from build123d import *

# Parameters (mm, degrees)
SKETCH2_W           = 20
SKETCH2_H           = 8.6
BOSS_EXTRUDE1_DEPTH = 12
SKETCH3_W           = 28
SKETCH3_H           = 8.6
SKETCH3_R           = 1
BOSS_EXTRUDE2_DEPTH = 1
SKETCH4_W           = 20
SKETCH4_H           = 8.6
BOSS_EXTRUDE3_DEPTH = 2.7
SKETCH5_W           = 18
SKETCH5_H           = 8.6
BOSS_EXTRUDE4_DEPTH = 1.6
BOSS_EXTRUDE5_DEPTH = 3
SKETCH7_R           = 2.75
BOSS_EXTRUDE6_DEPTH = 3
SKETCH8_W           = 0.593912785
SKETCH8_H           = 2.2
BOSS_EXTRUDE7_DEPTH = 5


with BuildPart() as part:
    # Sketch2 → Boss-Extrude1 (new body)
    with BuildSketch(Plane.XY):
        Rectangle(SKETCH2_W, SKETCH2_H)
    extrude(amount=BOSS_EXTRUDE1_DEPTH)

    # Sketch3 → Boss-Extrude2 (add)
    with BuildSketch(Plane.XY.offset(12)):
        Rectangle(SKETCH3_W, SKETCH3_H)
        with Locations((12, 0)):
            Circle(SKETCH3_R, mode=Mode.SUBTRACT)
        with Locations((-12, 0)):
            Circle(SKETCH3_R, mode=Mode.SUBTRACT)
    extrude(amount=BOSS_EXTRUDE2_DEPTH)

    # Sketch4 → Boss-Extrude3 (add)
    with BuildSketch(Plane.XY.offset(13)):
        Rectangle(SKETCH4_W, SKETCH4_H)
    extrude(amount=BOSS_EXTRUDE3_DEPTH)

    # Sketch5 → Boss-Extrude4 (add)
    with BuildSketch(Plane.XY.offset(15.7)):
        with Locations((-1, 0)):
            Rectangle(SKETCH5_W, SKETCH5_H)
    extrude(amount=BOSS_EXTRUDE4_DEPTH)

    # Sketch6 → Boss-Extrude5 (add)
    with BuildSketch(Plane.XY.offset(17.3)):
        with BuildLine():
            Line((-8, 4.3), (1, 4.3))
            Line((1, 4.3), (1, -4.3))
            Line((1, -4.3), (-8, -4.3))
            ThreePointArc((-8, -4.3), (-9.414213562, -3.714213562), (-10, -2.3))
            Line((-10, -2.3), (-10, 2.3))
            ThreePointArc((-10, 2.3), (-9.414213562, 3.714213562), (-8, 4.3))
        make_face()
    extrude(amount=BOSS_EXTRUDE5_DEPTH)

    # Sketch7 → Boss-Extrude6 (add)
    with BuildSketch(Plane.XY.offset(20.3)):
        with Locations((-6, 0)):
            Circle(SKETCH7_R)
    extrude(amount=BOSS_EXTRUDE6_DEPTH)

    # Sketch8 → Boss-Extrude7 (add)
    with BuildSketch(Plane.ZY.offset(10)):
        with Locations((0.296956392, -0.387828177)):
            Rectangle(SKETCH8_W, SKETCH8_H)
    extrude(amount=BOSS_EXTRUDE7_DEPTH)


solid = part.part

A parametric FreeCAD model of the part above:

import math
import FreeCAD as App
import Part
import Sketcher


def add_polygon(sketch, points):
    """Adds a closed chain of lines whose ends are joined by coincident constraints."""
    first, n = sketch.GeometryCount, len(points)
    for a, b in zip(points, points[1:] + points[:1]):
        sketch.addGeometry(Part.LineSegment(App.Vector(*a, 0), App.Vector(*b, 0)), False)
    for i in range(n):
        sketch.addConstraint(Sketcher.Constraint("Coincident", first + i, 2, first + (i + 1) % n, 1))

doc = App.newDocument("Part")
body = doc.addObject("PartDesign::Body", "Body")

# Sketch on XY plane
sketch1 = body.newObject("Sketcher::SketchObject", "Sketch")
sketch1.AttachmentSupport = (doc.getObject("XY_Plane"), [""])
sketch1.MapMode = "FlatFace"
add_polygon(sketch1, [(-10, 4), (-10, -4), (10, -4), (10, 4)])  # lines 0-3
sketch1.addConstraint([
    Sketcher.Constraint("Vertical", 0),
    Sketcher.Constraint("Horizontal", 1),
    Sketcher.Constraint("Vertical", 2),
    Sketcher.Constraint("Horizontal", 3),
    Sketcher.Constraint("Symmetric", 0, 2, 2, 2, -1, 1),
    Sketcher.Constraint("DistanceX", 1, 1, 1, 2, 20.0),
    Sketcher.Constraint("DistanceY", 0, 2, 0, 1, 8.6),
])
pad1 = body.newObject("PartDesign::Pad", "Pad")
pad1.Profile = sketch1
pad1.Length = 12

# Sketch on XY plane
sketch2 = body.newObject("Sketcher::SketchObject", "Sketch001")
sketch2.AttachmentSupport = (doc.getObject("XY_Plane"), [""])
sketch2.MapMode = "FlatFace"
sketch2.AttachmentOffset = App.Placement(App.Vector(0, 0, 12), App.Rotation())
add_polygon(sketch2, [(-14, 4.3), (-14, -4.3), (14, -4.3), (14, 4.3)])  # lines 0-3
sketch2.addGeometry(Part.Circle(App.Vector(-12, 0, 0), App.Vector(0, 0, 1), 1), False)  # 4
sketch2.addGeometry(Part.Circle(App.Vector(12, 0, 0), App.Vector(0, 0, 1), 1), False)  # 5
sketch2.addConstraint([
    Sketcher.Constraint("Vertical", 0),
    Sketcher.Constraint("Horizontal", 1),
    Sketcher.Constraint("Vertical", 2),
    Sketcher.Constraint("Horizontal", 3),
    Sketcher.Constraint("Equal", 4, 5),
    Sketcher.Constraint("Symmetric", 4, 3, 5, 3, -1, 1),
    Sketcher.Constraint("Symmetric", 0, 2, 2, 2, -1, 1),
    Sketcher.Constraint("PointOnObject", 4, 3, -1),
    Sketcher.Constraint("Diameter", 4, 2.0),
    Sketcher.Constraint("DistanceX", 1, 1, 1, 2, 28.0),
    Sketcher.Constraint("DistanceY", 0, 2, 0, 1, 8.6),
    Sketcher.Constraint("DistanceX", 4, 3, -1, 1, 12.0),
])
pad2 = body.newObject("PartDesign::Pad", "Pad001")
pad2.Profile = sketch2
pad2.Length = 1

# Sketch on XY plane
sketch3 = body.newObject("Sketcher::SketchObject", "Sketch002")
sketch3.AttachmentSupport = (doc.getObject("XY_Plane"), [""])
sketch3.MapMode = "FlatFace"
sketch3.AttachmentOffset = App.Placement(App.Vector(0, 0, 13), App.Rotation())
add_polygon(sketch3, [(-10, 4), (-10, -4), (10, -4), (10, 4)])  # lines 0-3
sketch3.addConstraint([
    Sketcher.Constraint("Vertical", 0),
    Sketcher.Constraint("Horizontal", 1),
    Sketcher.Constraint("Vertical", 2),
    Sketcher.Constraint("Horizontal", 3),
    Sketcher.Constraint("Symmetric", 0, 2, 2, 2, -1, 1),
    Sketcher.Constraint("DistanceX", 1, 1, 1, 2, 20.0),
    Sketcher.Constraint("DistanceY", 0, 2, 0, 1, 8.6),
])
pad3 = body.newObject("PartDesign::Pad", "Pad002")
pad3.Profile = sketch3
pad3.Length = 2.7

# Sketch on XY plane
sketch4 = body.newObject("Sketcher::SketchObject", "Sketch003")
sketch4.AttachmentSupport = (doc.getObject("XY_Plane"), [""])
sketch4.MapMode = "FlatFace"
sketch4.AttachmentOffset = App.Placement(App.Vector(0, 0, 15.7), App.Rotation())
add_polygon(sketch4, [(-10, 4), (-10, -4), (8, -4), (8, 4)])  # lines 0-3
sketch4.addConstraint([
    Sketcher.Constraint("Vertical", 0),
    Sketcher.Constraint("Horizontal", 1),
    Sketcher.Constraint("Vertical", 2),
    Sketcher.Constraint("Horizontal", 3),
    Sketcher.Constraint("DistanceX", 1, 1, 1, 2, 18.0),
    Sketcher.Constraint("DistanceY", 0, 2, 0, 1, 8.6),
    Sketcher.Constraint("DistanceX", 0, 2, -1, 1, 10.0),
    Sketcher.Constraint("DistanceY", 0, 2, -1, 1, 4.3),
])
pad4 = body.newObject("PartDesign::Pad", "Pad003")
pad4.Profile = sketch4
pad4.Length = 1.6

# Sketch on XY plane
sketch5 = body.newObject("Sketcher::SketchObject", "Sketch004")
sketch5.AttachmentSupport = (doc.getObject("XY_Plane"), [""])
sketch5.MapMode = "FlatFace"
sketch5.AttachmentOffset = App.Placement(App.Vector(0, 0, 17.3), App.Rotation())
sketch5.addGeometry([
    Part.LineSegment(App.Vector(1, 4.3, 0), App.Vector(-8, 4.3, 0)),  # 0
    Part.ArcOfCircle(Part.Circle(App.Vector(-8, 2.3, 0), App.Vector(0, 0, 1), 2), math.radians(90), math.radians(180)),  # 1
    Part.LineSegment(App.Vector(-10, 2.3, 0), App.Vector(-10, -2.3, 0)),  # 2
    Part.ArcOfCircle(Part.Circle(App.Vector(-8, -2.3, 0), App.Vector(0, 0, 1), 2), math.radians(-180), math.radians(-90)),  # 3
    Part.LineSegment(App.Vector(-8, -4.3, 0), App.Vector(1, -4.3, 0)),  # 4
    Part.LineSegment(App.Vector(1, -4.3, 0), App.Vector(1, 4.3, 0)),  # 5
], False)
sketch5.addConstraint([
    Sketcher.Constraint("Tangent", 0, 2, 1, 1),
    Sketcher.Constraint("Tangent", 1, 2, 2, 1),
    Sketcher.Constraint("Tangent", 2, 2, 3, 1),
    Sketcher.Constraint("Tangent", 3, 2, 4, 1),
    Sketcher.Constraint("Coincident", 4, 2, 5, 1),
    Sketcher.Constraint("Coincident", 5, 2, 0, 1),
    Sketcher.Constraint("Horizontal", 0),
    Sketcher.Constraint("Vertical", 2),
    Sketcher.Constraint("Horizontal", 4),
    Sketcher.Constraint("Vertical", 5),
    Sketcher.Constraint("Equal", 1, 3),
    Sketcher.Constraint("Radius", 1, 2.0),
    Sketcher.Constraint("DistanceX", 0, 2, 0, 1, 9.0),
    Sketcher.Constraint("DistanceY", 2, 2, 2, 1, 4.6),
    Sketcher.Constraint("DistanceX", 1, 3, -1, 1, 8.0),
    Sketcher.Constraint("DistanceY", -1, 1, 1, 3, 2.3),
])
pad5 = body.newObject("PartDesign::Pad", "Pad004")
pad5.Profile = sketch5
pad5.Length = 3

# Sketch on XY plane
sketch6 = body.newObject("Sketcher::SketchObject", "Sketch005")
sketch6.AttachmentSupport = (doc.getObject("XY_Plane"), [""])
sketch6.MapMode = "FlatFace"
sketch6.AttachmentOffset = App.Placement(App.Vector(0, 0, 20.3), App.Rotation())
sketch6.addGeometry(Part.Circle(App.Vector(-6, 0, 0), App.Vector(0, 0, 1), 2.8), False)
sketch6.addConstraint([
    Sketcher.Constraint("PointOnObject", 0, 3, -1),
    Sketcher.Constraint("Diameter", 0, 5.5),
    Sketcher.Constraint("DistanceX", 0, 3, -1, 1, 6.0),
])
pad6 = body.newObject("PartDesign::Pad", "Pad005")
pad6.Profile = sketch6
pad6.Length = 3

# Sketch on YZ plane
sketch7 = body.newObject("Sketcher::SketchObject", "Sketch006")
sketch7.AttachmentSupport = (doc.getObject("YZ_Plane"), [""])
sketch7.MapMode = "FlatFace"
sketch7.AttachmentOffset = App.Placement(App.Vector(0, 0, -10), App.Rotation())
add_polygon(sketch7, [(0.7, 0), (-1.5, 0), (-1.5, 0.6), (0.7, 0.6)])  # lines 0-3
sketch7.addConstraint([
    Sketcher.Constraint("Horizontal", 0),
    Sketcher.Constraint("Vertical", 1),
    Sketcher.Constraint("Horizontal", 2),
    Sketcher.Constraint("Vertical", 3),
    Sketcher.Constraint("PointOnObject", 0, 2, -1),
    Sketcher.Constraint("DistanceX", 0, 2, 0, 1, 2.2),
    Sketcher.Constraint("DistanceY", 1, 1, 1, 2, 0.593913),
    Sketcher.Constraint("DistanceX", 0, 2, -1, 1, 1.487828),
])
pad7 = body.newObject("PartDesign::Pad", "Pad006")
pad7.Profile = sketch7
pad7.Length = 5
pad7.Reversed = True

doc.recompute()
